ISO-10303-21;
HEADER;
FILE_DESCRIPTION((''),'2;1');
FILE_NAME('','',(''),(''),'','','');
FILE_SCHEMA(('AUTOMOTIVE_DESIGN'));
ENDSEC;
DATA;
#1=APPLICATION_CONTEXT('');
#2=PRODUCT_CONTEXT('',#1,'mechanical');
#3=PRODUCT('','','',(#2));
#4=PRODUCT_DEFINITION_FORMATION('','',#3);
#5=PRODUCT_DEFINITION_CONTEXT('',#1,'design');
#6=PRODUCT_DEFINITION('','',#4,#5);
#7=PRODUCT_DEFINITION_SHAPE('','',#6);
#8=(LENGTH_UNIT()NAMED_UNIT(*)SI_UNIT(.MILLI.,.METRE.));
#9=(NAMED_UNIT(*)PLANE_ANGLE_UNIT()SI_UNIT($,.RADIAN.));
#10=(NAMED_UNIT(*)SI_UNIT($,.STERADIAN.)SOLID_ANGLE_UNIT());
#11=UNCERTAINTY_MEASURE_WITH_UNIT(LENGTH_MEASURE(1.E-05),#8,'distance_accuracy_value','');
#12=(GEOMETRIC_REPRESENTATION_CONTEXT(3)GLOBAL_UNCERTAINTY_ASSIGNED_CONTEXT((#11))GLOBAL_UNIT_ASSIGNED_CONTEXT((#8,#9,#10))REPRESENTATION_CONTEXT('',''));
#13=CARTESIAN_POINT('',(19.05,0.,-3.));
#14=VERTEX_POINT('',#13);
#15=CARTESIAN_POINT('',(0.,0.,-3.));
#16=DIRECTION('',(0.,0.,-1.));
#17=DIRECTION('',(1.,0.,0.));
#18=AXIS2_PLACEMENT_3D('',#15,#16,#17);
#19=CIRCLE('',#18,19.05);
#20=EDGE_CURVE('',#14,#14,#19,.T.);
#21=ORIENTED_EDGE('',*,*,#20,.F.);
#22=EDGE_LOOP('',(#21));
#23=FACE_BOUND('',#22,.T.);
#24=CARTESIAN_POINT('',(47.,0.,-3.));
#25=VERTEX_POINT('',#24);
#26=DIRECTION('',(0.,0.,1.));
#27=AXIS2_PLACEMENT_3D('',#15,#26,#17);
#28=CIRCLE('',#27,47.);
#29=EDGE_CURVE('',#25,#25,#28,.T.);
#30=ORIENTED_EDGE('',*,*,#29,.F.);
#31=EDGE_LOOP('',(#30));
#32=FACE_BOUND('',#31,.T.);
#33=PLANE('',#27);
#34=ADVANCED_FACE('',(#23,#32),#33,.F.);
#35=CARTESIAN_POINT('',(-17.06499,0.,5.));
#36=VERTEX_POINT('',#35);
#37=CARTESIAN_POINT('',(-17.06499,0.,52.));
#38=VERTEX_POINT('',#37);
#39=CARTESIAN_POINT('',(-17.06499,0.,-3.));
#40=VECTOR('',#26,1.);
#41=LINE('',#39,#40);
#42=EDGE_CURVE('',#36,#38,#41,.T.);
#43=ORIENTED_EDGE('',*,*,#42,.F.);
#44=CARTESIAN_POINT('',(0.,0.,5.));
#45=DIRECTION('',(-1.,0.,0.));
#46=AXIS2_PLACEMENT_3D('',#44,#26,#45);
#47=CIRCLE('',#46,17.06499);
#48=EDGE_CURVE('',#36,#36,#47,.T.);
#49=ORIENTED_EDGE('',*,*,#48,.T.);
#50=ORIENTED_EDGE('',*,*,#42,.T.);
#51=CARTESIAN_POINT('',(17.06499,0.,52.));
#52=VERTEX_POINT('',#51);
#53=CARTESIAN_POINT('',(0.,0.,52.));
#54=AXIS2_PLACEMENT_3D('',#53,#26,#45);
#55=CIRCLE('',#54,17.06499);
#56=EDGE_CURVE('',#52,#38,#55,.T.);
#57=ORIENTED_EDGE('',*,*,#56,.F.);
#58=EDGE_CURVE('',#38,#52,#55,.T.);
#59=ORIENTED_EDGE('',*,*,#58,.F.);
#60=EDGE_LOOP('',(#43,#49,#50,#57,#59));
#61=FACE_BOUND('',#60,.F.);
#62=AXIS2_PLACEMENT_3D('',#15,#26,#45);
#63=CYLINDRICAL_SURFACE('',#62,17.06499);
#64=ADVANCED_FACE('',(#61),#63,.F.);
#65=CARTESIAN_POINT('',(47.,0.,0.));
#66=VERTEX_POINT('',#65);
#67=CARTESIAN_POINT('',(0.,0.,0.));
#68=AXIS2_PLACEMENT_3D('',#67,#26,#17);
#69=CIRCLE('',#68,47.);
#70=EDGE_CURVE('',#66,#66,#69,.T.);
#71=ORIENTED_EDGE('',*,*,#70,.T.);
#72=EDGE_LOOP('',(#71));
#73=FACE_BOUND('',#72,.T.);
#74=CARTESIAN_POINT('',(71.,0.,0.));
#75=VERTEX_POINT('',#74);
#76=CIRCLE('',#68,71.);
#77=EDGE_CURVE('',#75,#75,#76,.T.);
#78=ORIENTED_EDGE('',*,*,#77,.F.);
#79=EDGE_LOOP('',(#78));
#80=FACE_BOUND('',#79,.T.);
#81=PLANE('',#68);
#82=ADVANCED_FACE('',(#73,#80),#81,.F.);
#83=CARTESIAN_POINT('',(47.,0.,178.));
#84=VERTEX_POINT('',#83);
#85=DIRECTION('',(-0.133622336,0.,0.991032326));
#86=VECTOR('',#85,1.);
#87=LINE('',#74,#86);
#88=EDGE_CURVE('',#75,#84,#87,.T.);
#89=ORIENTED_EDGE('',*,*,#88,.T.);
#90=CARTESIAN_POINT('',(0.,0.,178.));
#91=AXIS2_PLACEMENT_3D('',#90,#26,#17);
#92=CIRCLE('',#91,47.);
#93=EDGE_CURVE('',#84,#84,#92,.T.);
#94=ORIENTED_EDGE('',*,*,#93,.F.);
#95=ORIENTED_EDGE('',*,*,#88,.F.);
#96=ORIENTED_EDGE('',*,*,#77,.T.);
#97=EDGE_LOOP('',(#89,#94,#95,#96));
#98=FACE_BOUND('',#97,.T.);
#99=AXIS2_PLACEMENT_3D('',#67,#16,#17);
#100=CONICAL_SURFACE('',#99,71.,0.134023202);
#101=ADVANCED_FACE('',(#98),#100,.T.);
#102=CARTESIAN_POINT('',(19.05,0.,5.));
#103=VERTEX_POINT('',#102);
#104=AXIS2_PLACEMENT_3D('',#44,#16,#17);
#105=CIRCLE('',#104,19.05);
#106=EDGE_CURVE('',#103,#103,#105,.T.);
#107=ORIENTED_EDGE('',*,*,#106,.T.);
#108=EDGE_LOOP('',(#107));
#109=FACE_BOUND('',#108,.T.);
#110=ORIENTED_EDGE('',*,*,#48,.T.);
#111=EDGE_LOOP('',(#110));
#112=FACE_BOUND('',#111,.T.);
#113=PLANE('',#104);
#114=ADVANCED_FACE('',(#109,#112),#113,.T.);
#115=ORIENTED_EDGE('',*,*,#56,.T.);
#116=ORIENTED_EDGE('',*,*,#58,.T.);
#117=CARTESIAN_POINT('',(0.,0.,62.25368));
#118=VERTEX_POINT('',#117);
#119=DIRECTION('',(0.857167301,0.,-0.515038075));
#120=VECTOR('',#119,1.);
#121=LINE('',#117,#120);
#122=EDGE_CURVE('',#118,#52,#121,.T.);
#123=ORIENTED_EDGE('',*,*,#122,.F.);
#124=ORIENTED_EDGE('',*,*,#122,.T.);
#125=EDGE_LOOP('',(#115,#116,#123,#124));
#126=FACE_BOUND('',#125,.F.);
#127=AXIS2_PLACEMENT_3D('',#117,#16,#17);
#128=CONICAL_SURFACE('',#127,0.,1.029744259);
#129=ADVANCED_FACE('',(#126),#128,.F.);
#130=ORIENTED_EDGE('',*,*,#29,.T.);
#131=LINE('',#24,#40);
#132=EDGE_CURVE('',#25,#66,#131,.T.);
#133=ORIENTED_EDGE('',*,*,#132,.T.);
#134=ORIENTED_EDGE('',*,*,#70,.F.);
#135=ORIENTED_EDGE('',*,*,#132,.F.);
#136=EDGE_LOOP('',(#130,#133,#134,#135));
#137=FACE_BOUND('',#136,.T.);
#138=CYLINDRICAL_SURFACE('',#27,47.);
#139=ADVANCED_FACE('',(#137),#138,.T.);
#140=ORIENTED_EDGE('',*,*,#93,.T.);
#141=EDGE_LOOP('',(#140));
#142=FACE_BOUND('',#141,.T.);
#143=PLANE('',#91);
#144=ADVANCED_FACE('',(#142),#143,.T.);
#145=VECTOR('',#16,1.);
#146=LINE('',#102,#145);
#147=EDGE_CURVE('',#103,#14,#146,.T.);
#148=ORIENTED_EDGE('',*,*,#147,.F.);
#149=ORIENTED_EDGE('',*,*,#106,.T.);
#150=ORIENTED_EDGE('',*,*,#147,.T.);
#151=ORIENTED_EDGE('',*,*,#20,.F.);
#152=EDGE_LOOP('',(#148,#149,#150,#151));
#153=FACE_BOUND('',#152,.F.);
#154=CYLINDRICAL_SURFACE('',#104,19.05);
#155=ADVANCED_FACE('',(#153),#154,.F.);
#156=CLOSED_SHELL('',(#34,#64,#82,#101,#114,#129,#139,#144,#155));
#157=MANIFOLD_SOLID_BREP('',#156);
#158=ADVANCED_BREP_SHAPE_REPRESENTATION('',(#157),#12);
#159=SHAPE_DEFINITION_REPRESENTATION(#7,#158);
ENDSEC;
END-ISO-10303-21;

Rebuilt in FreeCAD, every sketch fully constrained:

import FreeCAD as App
import Part
import Sketcher
Q = App.Units.Quantity


def add_polygon(sketch, points):
    """Adds a closed chain of lines whose ends are joined by coincident constraints."""
    first, n = sketch.GeometryCount, len(points)
    for a, b in zip(points, points[1:] + points[:1]):
        sketch.addGeometry(Part.LineSegment(App.Vector(*a, 0), App.Vector(*b, 0)), False)
    for i in range(n):
        sketch.addConstraint(Sketcher.Constraint("Coincident", first + i, 2, first + (i + 1) % n, 1))

doc = App.newDocument("Part")
body = doc.addObject("PartDesign::Body", "Body")

sketch1 = body.newObject("Sketcher::SketchObject", "Sketch")
sketch1.AttachmentSupport = (doc.getObject("XZ_Plane"), [""])
sketch1.MapMode = "FlatFace"
add_polygon(sketch1, [(47, -3), (47, 0), (71, 0), (47, 178), (0, 178), (0, -3)])
sketch1.addConstraint([
    Sketcher.Constraint("Vertical", 0),
    Sketcher.Constraint("Horizontal", 1),
    Sketcher.Constraint("Horizontal", 3),
    Sketcher.Constraint("Vertical", 4),
    Sketcher.Constraint("Horizontal", 5),
    Sketcher.Constraint("PointOnObject", 0, 2, -1),
    Sketcher.Constraint("PointOnObject", 3, 2, -2),
    Sketcher.Constraint("Vertical", 0, 2, 2, 2),
    Sketcher.Constraint("DistanceX", 1, 1, 1, 2, Q("24 mm")),
    Sketcher.Constraint("DistanceX", 3, 2, 3, 1, Q("47 mm")),
    Sketcher.Constraint("DistanceY", 0, 1, 0, 2, Q("3 mm")),
    Sketcher.Constraint("DistanceY", 4, 2, 4, 1, Q("181 mm")),
])
revolution = body.newObject("PartDesign::Revolution", "Revolution")
revolution.Profile = sketch1
revolution.ReferenceAxis = (sketch1, ["V_Axis"])
revolution.Angle = 360

sketch2 = body.newObject("Sketcher::SketchObject", "Sketch001")
sketch2.AttachmentSupport = (doc.getObject("XY_Plane"), [""])
sketch2.MapMode = "FlatFace"
sketch2.AttachmentOffset = App.Placement(App.Vector(0, 0, -3), App.Rotation())
sketch2.addGeometry(Part.Circle(App.Vector(0, 0, 0), App.Vector(0, 0, 1), 17.06499), False)
sketch2.addConstraint([
    Sketcher.Constraint("Coincident", 0, 3, -1, 1),
    Sketcher.Constraint("Diameter", 0, Q("34.12998 mm")),
])
doc.recompute()
hole = body.newObject("PartDesign::Hole", "Hole")
hole.Profile = sketch2
hole.ThreadType = "None"
hole.Diameter = 34.12998
hole.DepthType = "Dimension"
hole.Depth = 55
hole.DrillPoint = "Angled"
hole.DrillPointAngle = 118
hole.HoleCutType = "Counterbore"
hole.HoleCutDiameter = 38.1
hole.HoleCutDepth = 8
hole.Reversed = True

doc.recompute()
